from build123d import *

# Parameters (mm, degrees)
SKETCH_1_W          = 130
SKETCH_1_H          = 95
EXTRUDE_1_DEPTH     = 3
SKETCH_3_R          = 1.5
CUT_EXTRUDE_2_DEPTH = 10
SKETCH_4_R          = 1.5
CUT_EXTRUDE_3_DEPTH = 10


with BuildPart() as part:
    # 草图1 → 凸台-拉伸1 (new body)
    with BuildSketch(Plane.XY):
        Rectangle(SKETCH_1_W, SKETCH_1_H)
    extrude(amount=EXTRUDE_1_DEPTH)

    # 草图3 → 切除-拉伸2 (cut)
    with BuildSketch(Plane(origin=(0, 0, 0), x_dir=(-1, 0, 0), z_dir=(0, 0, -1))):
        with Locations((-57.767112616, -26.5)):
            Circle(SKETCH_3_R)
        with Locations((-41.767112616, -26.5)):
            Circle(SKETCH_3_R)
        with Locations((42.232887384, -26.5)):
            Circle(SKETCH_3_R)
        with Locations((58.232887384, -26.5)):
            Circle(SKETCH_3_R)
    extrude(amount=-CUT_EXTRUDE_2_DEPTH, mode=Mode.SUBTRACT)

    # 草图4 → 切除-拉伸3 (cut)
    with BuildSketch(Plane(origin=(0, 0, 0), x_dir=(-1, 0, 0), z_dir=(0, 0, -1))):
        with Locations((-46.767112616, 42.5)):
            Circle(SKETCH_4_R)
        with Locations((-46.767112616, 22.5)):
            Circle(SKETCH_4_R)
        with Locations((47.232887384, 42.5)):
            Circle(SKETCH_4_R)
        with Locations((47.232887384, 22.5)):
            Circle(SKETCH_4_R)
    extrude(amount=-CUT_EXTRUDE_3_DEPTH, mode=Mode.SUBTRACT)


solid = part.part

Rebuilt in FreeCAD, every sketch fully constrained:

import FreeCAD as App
import Part
import Sketcher

doc = App.newDocument("Part")
body = doc.addObject("PartDesign::Body", "Body")

# Sketch on XY plane
sketch1 = body.newObject("Sketcher::SketchObject", "Sketch")
sketch1.AttachmentSupport = (doc.getObject("XY_Plane"), [""])
sketch1.MapMode = "FlatFace"
sketch1.addGeometry([
    Part.LineSegment(App.Vector(-65, 48, 0), App.Vector(-65, -48, 0)),
    Part.LineSegment(App.Vector(-65, -48, 0), App.Vector(65, -48, 0)),
    Part.LineSegment(App.Vector(65, -48, 0), App.Vector(65, 48, 0)),
    Part.LineSegment(App.Vector(65, 48, 0), App.Vector(-65, 48, 0)),
], False)
sketch1.addConstraint([
    Sketcher.Constraint("Coincident", 0, 2, 1, 1),
    Sketcher.Constraint("Coincident", 1, 2, 2, 1),
    Sketcher.Constraint("Coincident", 2, 2, 3, 1),
    Sketcher.Constraint("Coincident", 3, 2, 0, 1),
    Sketcher.Constraint("Vertical", 0),
    Sketcher.Constraint("Horizontal", 1),
    Sketcher.Constraint("Vertical", 2),
    Sketcher.Constraint("Horizontal", 3),
    Sketcher.Constraint("Symmetric", 0, 2, 2, 2, -1, 1),
    Sketcher.Constraint("DistanceX", 1, 1, 1, 2, 130.0),
    Sketcher.Constraint("DistanceY", 0, 2, 0, 1, 95.0),
])
pad1 = body.newObject("PartDesign::Pad", "Pad")
pad1.Profile = sketch1
pad1.Length = 3

# Sketch on XY plane
sketch2 = body.newObject("Sketcher::SketchObject", "Sketch001")
sketch2.AttachmentSupport = (doc.getObject("XY_Plane"), [""])
sketch2.MapMode = "FlatFace"
sketch2.addGeometry([
    Part.Circle(App.Vector(57.8, -26.5, 0), App.Vector(0, 0, 1), 1.5),
    Part.Circle(App.Vector(41.8, -26.5, 0), App.Vector(0, 0, 1), 1.5),
    Part.Circle(App.Vector(-42.2, -26.5, 0), App.Vector(0, 0, 1), 1.5),
    Part.Circle(App.Vector(-58.2, -26.5, 0), App.Vector(0, 0, 1), 1.5),
], False)
sketch2.addConstraint([
    Sketcher.Constraint("Equal", 0, 1),
    Sketcher.Constraint("Equal", 1, 2),
    Sketcher.Constraint("Equal", 2, 3),
    Sketcher.Constraint("Horizontal", 0, 3, 1, 3),
    Sketcher.Constraint("Horizontal", 1, 3, 2, 3),
    Sketcher.Constraint("Horizontal", 2, 3, 3, 3),
    Sketcher.Constraint("Diameter", 0, 3.0),
    Sketcher.Constraint("DistanceX", 1, 3, 0, 3, 16.0),
    Sketcher.Constraint("DistanceX", 2, 3, 1, 3, 84.0),
    Sketcher.Constraint("DistanceX", 3, 3, 2, 3, 16.0),
    Sketcher.Constraint("DistanceY", 0, 3, -1, 1, 26.5),
    Sketcher.Constraint("DistanceX", -1, 1, 0, 3, 57.767113),
])
pocket1 = body.newObject("PartDesign::Pocket", "Pocket")
pocket1.Profile = sketch2
pocket1.Length = 10
pocket1.Reversed = True

# Sketch on XY plane
sketch3 = body.newObject("Sketcher::SketchObject", "Sketch002")
sketch3.AttachmentSupport = (doc.getObject("XY_Plane"), [""])
sketch3.MapMode = "FlatFace"
sketch3.addGeometry([
    Part.Circle(App.Vector(46.8, 42.5, 0), App.Vector(0, 0, 1), 1.5),
    Part.Circle(App.Vector(46.8, 22.5, 0), App.Vector(0, 0, 1), 1.5),
    Part.Circle(App.Vector(-47.2, 42.5, 0), App.Vector(0, 0, 1), 1.5),
    Part.Circle(App.Vector(-47.2, 22.5, 0), App.Vector(0, 0, 1), 1.5),
], False)
sketch3.addConstraint([
    Sketcher.Constraint("Equal", 0, 1),
    Sketcher.Constraint("Equal", 1, 2),
    Sketcher.Constraint("Equal", 2, 3),
    Sketcher.Constraint("Horizontal", 0, 3, 2, 3),
    Sketcher.Constraint("Horizontal", 1, 3, 3, 3),
    Sketcher.Constraint("Vertical", 0, 3, 1, 3),
    Sketcher.Constraint("Vertical", 2, 3, 3, 3),
    Sketcher.Constraint("Diameter", 0, 3.0),
    Sketcher.Constraint("DistanceY", 1, 3, 0, 3, 20.0),
    Sketcher.Constraint("DistanceX", 2, 3, 0, 3, 94.0),
    Sketcher.Constraint("DistanceY", -1, 1, 0, 3, 42.5),
    Sketcher.Constraint("DistanceX", -1, 1, 0, 3, 46.767113),
])
pocket2 = body.newObject("PartDesign::Pocket", "Pocket001")
pocket2.Profile = sketch3
pocket2.Length = 10
pocket2.Reversed = True

doc.recompute()
